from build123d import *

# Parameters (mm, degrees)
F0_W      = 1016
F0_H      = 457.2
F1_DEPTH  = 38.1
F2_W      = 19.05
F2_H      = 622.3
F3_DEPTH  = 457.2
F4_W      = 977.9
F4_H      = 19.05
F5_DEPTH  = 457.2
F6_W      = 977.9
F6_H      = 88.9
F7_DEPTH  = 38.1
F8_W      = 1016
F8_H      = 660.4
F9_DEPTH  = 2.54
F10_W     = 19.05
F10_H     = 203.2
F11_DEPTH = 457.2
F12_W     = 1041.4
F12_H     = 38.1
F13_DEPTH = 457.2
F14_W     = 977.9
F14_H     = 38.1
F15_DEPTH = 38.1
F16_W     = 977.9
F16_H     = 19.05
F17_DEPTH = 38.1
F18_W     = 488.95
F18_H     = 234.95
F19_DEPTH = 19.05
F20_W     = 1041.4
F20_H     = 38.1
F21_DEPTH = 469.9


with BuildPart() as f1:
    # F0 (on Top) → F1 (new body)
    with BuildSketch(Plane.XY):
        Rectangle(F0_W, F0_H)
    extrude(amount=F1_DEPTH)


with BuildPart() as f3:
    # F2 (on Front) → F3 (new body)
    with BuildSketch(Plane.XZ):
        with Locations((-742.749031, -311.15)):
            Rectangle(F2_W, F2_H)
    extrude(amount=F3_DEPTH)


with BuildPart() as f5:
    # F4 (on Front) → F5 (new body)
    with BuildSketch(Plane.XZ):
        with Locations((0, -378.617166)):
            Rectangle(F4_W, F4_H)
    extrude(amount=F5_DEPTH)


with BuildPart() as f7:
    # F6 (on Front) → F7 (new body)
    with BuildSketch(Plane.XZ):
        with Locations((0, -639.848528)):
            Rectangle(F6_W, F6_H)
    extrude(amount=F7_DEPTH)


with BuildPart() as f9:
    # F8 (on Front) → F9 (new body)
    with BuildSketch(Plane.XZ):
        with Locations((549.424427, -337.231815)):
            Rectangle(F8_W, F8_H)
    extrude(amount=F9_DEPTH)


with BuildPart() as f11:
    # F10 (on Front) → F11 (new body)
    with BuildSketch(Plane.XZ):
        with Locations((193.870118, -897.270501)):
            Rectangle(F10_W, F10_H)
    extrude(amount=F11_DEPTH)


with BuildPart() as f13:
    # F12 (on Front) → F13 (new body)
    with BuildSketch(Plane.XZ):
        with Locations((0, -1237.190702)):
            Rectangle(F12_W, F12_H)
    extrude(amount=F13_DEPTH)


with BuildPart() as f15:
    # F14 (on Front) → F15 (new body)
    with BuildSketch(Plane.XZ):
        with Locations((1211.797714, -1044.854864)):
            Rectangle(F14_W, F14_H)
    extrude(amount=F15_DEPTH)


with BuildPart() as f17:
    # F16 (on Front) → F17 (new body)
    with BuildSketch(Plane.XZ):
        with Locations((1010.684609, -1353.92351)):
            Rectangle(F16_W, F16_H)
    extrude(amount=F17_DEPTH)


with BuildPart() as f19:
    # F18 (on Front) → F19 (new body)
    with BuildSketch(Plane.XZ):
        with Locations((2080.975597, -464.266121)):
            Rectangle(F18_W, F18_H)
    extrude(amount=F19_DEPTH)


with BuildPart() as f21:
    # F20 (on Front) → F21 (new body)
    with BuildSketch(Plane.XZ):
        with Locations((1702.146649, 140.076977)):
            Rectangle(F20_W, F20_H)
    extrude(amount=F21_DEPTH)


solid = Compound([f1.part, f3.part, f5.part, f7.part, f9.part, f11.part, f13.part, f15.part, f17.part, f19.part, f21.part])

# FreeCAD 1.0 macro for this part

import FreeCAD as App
import Part
import Sketcher
from FreeCAD import Vector
Q = App.Units.Quantity

doc = App.newDocument("Part")
body = doc.addObject("PartDesign::Body", "Body")

sketch1 = body.newObject("Sketcher::SketchObject", "Sketch")
sketch1.AttachmentSupport = (doc.getObject("XY_Plane"), [""])
sketch1.MapMode = "FlatFace"
sketch1.addGeometry([
    Part.LineSegment(Vector(-508, 228.6, 0), Vector(-508, -228.6, 0)),
    Part.LineSegment(Vector(-508, -228.6, 0), Vector(508, -228.6, 0)),
    Part.LineSegment(Vector(508, -228.6, 0), Vector(508, 228.6, 0)),
    Part.LineSegment(Vector(508, 228.6, 0), Vector(-508, 228.6, 0)),
], False)
sketch1.addConstraint([
    Sketcher.Constraint("Coincident", 0, 2, 1, 1),
    Sketcher.Constraint("Coincident", 1, 2, 2, 1),
    Sketcher.Constraint("Coincident", 2, 2, 3, 1),
    Sketcher.Constraint("Coincident", 3, 2, 0, 1),
    Sketcher.Constraint("Vertical", 0),
    Sketcher.Constraint("Horizontal", 1),
    Sketcher.Constraint("Vertical", 2),
    Sketcher.Constraint("Horizontal", 3),
    Sketcher.Constraint("Symmetric", 0, 2, 2, 2, -1, 1),
    Sketcher.Constraint("DistanceX", 1, 1, 1, 2, Q("40 in")),
    Sketcher.Constraint("DistanceY", 0, 2, 0, 1, Q("18 in")),
])
pad1 = body.newObject("PartDesign::Pad", "Pad")
pad1.Profile = sketch1
pad1.Length = Q("1.5 in")
body2 = doc.addObject("PartDesign::Body", "Body001")

sketch2 = body2.newObject("Sketcher::SketchObject", "Sketch001")
sketch2.AttachmentSupport = (doc.getObject("XZ_Plane001"), [""])
sketch2.MapMode = "FlatFace"
sketch2.addGeometry([
    Part.LineSegment(Vector(-752.274031, 0, 0), Vector(-752.274031, -622.3, 0)),
    Part.LineSegment(Vector(-752.274031, -622.3, 0), Vector(-733.224031, -622.3, 0)),
    Part.LineSegment(Vector(-733.224031, -622.3, 0), Vector(-733.224031, 0, 0)),
    Part.LineSegment(Vector(-733.224031, 0, 0), Vector(-752.274031, 0, 0)),
], False)
sketch2.addConstraint([
    Sketcher.Constraint("Coincident", 0, 2, 1, 1),
    Sketcher.Constraint("Coincident", 1, 2, 2, 1),
    Sketcher.Constraint("Coincident", 2, 2, 3, 1),
    Sketcher.Constraint("Coincident", 3, 2, 0, 1),
    Sketcher.Constraint("Vertical", 0),
    Sketcher.Constraint("Horizontal", 1),
    Sketcher.Constraint("Vertical", 2),
    Sketcher.Constraint("Horizontal", 3),
    Sketcher.Constraint("PointOnObject", 2, 2, -1),
    Sketcher.Constraint("DistanceY", 0, 2, 0, 1, Q("24.5 in")),
    Sketcher.Constraint("DistanceX", 1, 1, 1, 2, Q("0.75 in")),
    Sketcher.Constraint("DistanceX", 0, 2, -1, 1, Q("752.274031 mm")),
])
pad2 = body2.newObject("PartDesign::Pad", "Pad001")
pad2.Profile = sketch2
pad2.Length = Q("18 in")
body3 = doc.addObject("PartDesign::Body", "Body002")

sketch3 = body3.newObject("Sketcher::SketchObject", "Sketch002")
sketch3.AttachmentSupport = (doc.getObject("XZ_Plane002"), [""])
sketch3.MapMode = "FlatFace"
sketch3.addGeometry([
    Part.LineSegment(Vector(-488.95, -369.092166, 0), Vector(-488.95, -388.142166, 0)),
    Part.LineSegment(Vector(-488.95, -388.142166, 0), Vector(488.95, -388.142166, 0)),
    Part.LineSegment(Vector(488.95, -388.142166, 0), Vector(488.95, -369.092166, 0)),
    Part.LineSegment(Vector(488.95, -369.092166, 0), Vector(-488.95, -369.092166, 0)),
], False)
sketch3.addConstraint([
    Sketcher.Constraint("Coincident", 0, 2, 1, 1),
    Sketcher.Constraint("Coincident", 1, 2, 2, 1),
    Sketcher.Constraint("Coincident", 2, 2, 3, 1),
    Sketcher.Constraint("Coincident", 3, 2, 0, 1),
    Sketcher.Constraint("Vertical", 0),
    Sketcher.Constraint("Horizontal", 1),
    Sketcher.Constraint("Vertical", 2),
    Sketcher.Constraint("Horizontal", 3),
    Sketcher.Constraint("DistanceX", 1, 1, 1, 2, Q("38.5 in")),
    Sketcher.Constraint("DistanceY", 0, 2, 0, 1, Q("0.75 in")),
    Sketcher.Constraint("DistanceX", 0, 2, -1, 1, Q("19.25 in")),
    Sketcher.Constraint("DistanceY", 0, 2, -1, 1, Q("388.142166 mm")),
])
pad3 = body3.newObject("PartDesign::Pad", "Pad002")
pad3.Profile = sketch3
pad3.Length = Q("18 in")
body4 = doc.addObject("PartDesign::Body", "Body003")

sketch4 = body4.newObject("Sketcher::SketchObject", "Sketch003")
sketch4.AttachmentSupport = (doc.getObject("XZ_Plane003"), [""])
sketch4.MapMode = "FlatFace"
sketch4.addGeometry([
    Part.LineSegment(Vector(-488.95, -595.398528, 0), Vector(-488.95, -684.298528, 0)),
    Part.LineSegment(Vector(-488.95, -684.298528, 0), Vector(488.95, -684.298528, 0)),
    Part.LineSegment(Vector(488.95, -684.298528, 0), Vector(488.95, -595.398528, 0)),
    Part.LineSegment(Vector(488.95, -595.398528, 0), Vector(-488.95, -595.398528, 0)),
], False)
sketch4.addConstraint([
    Sketcher.Constraint("Coincident", 0, 2, 1, 1),
    Sketcher.Constraint("Coincident", 1, 2, 2, 1),
    Sketcher.Constraint("Coincident", 2, 2, 3, 1),
    Sketcher.Constraint("Coincident", 3, 2, 0, 1),
    Sketcher.Constraint("Vertical", 0),
    Sketcher.Constraint("Horizontal", 1),
    Sketcher.Constraint("Vertical", 2),
    Sketcher.Constraint("Horizontal", 3),
    Sketcher.Constraint("DistanceX", 1, 1, 1, 2, Q("38.5 in")),
    Sketcher.Constraint("DistanceY", 0, 2, 0, 1, Q("3.5 in")),
    Sketcher.Constraint("DistanceX", 0, 2, -1, 1, Q("19.25 in")),
    Sketcher.Constraint("DistanceY", 0, 2, -1, 1, Q("684.298528 mm")),
])
pad4 = body4.newObject("PartDesign::Pad", "Pad003")
pad4.Profile = sketch4
pad4.Length = Q("1.5 in")
body5 = doc.addObject("PartDesign::Body", "Body004")

sketch5 = body5.newObject("Sketcher::SketchObject", "Sketch004")
sketch5.AttachmentSupport = (doc.getObject("XZ_Plane004"), [""])
sketch5.MapMode = "FlatFace"
sketch5.addGeometry([
    Part.LineSegment(Vector(41.424427, -7.031815, 0), Vector(41.424427, -667.431815, 0)),
    Part.LineSegment(Vector(41.424427, -667.431815, 0), Vector(1057.424427, -667.431815, 0)),
    Part.LineSegment(Vector(1057.424427, -667.431815, 0), Vector(1057.424427, -7.031815, 0)),
    Part.LineSegment(Vector(1057.424427, -7.031815, 0), Vector(41.424427, -7.031815, 0)),
], False)
sketch5.addConstraint([
    Sketcher.Constraint("Coincident", 0, 2, 1, 1),
    Sketcher.Constraint("Coincident", 1, 2, 2, 1),
    Sketcher.Constraint("Coincident", 2, 2, 3, 1),
    Sketcher.Constraint("Coincident", 3, 2, 0, 1),
    Sketcher.Constraint("Vertical", 0),
    Sketcher.Constraint("Horizontal", 1),
    Sketcher.Constraint("Vertical", 2),
    Sketcher.Constraint("Horizontal", 3),
    Sketcher.Constraint("DistanceX", 1, 1, 1, 2, Q("40 in")),
    Sketcher.Constraint("DistanceY", 0, 2, 0, 1, Q("26 in")),
    Sketcher.Constraint("DistanceX", -1, 1, 0, 2, Q("41.424427 mm")),
    Sketcher.Constraint("DistanceY", 0, 2, -1, 1, Q("667.431815 mm")),
])
pad5 = body5.newObject("PartDesign::Pad", "Pad004")
pad5.Profile = sketch5
pad5.Length = Q("0.1 in")
body6 = doc.addObject("PartDesign::Body", "Body005")

sketch6 = body6.newObject("Sketcher::SketchObject", "Sketch005")
sketch6.AttachmentSupport = (doc.getObject("XZ_Plane005"), [""])
sketch6.MapMode = "FlatFace"
sketch6.addGeometry([
    Part.LineSegment(Vector(184.345118, -795.670501, 0), Vector(184.345118, -998.870501, 0)),
    Part.LineSegment(Vector(184.345118, -998.870501, 0), Vector(203.395118, -998.870501, 0)),
    Part.LineSegment(Vector(203.395118, -998.870501, 0), Vector(203.395118, -795.670501, 0)),
    Part.LineSegment(Vector(203.395118, -795.670501, 0), Vector(184.345118, -795.670501, 0)),
], False)
sketch6.addConstraint([
    Sketcher.Constraint("Coincident", 0, 2, 1, 1),
    Sketcher.Constraint("Coincident", 1, 2, 2, 1),
    Sketcher.Constraint("Coincident", 2, 2, 3, 1),
    Sketcher.Constraint("Coincident", 3, 2, 0, 1),
    Sketcher.Constraint("Vertical", 0),
    Sketcher.Constraint("Horizontal", 1),
    Sketcher.Constraint("Vertical", 2),
    Sketcher.Constraint("Horizontal", 3),
    Sketcher.Constraint("DistanceY", 0, 2, 0, 1, Q("8 in")),
    Sketcher.Constraint("DistanceX", 1, 1, 1, 2, Q("0.75 in")),
    Sketcher.Constraint("DistanceY", 0, 2, -1, 1, Q("998.870501 mm")),
    Sketcher.Constraint("DistanceX", -1, 1, 0, 2, Q("184.345118 mm")),
])
pad6 = body6.newObject("PartDesign::Pad", "Pad005")
pad6.Profile = sketch6
pad6.Length = Q("18 in")
body7 = doc.addObject("PartDesign::Body", "Body006")

sketch7 = body7.newObject("Sketcher::SketchObject", "Sketch006")
sketch7.AttachmentSupport = (doc.getObject("XZ_Plane006"), [""])
sketch7.MapMode = "FlatFace"
sketch7.addGeometry([
    Part.LineSegment(Vector(-520.7, -1218.140702, 0), Vector(-520.7, -1256.240702, 0)),
    Part.LineSegment(Vector(-520.7, -1256.240702, 0), Vector(520.7, -1256.240702, 0)),
    Part.LineSegment(Vector(520.7, -1256.240702, 0), Vector(520.7, -1218.140702, 0)),
    Part.LineSegment(Vector(520.7, -1218.140702, 0), Vector(-520.7, -1218.140702, 0)),
], False)
sketch7.addConstraint([
    Sketcher.Constraint("Coincident", 0, 2, 1, 1),
    Sketcher.Constraint("Coincident", 1, 2, 2, 1),
    Sketcher.Constraint("Coincident", 2, 2, 3, 1),
    Sketcher.Constraint("Coincident", 3, 2, 0, 1),
    Sketcher.Constraint("Vertical", 0),
    Sketcher.Constraint("Horizontal", 1),
    Sketcher.Constraint("Vertical", 2),
    Sketcher.Constraint("Horizontal", 3),
    Sketcher.Constraint("DistanceX", 1, 1, 1, 2, Q("41 in")),
    Sketcher.Constraint("DistanceY", 0, 2, 0, 1, Q("1.5 in")),
    Sketcher.Constraint("DistanceX", 0, 2, -1, 1, Q("20.5 in")),
    Sketcher.Constraint("DistanceY", 0, 2, -1, 1, Q("1256.240702 mm")),
])
pad7 = body7.newObject("PartDesign::Pad", "Pad006")
pad7.Profile = sketch7
pad7.Length = Q("18 in")
body8 = doc.addObject("PartDesign::Body", "Body007")

sketch8 = body8.newObject("Sketcher::SketchObject", "Sketch007")
sketch8.AttachmentSupport = (doc.getObject("XZ_Plane007"), [""])
sketch8.MapMode = "FlatFace"
sketch8.addGeometry([
    Part.LineSegment(Vector(722.847714, -1025.804864, 0), Vector(722.847714, -1063.904864, 0)),
    Part.LineSegment(Vector(722.847714, -1063.904864, 0), Vector(1700.747714, -1063.904864, 0)),
    Part.LineSegment(Vector(1700.747714, -1063.904864, 0), Vector(1700.747714, -1025.804864, 0)),
    Part.LineSegment(Vector(1700.747714, -1025.804864, 0), Vector(722.847714, -1025.804864, 0)),
], False)
sketch8.addConstraint([
    Sketcher.Constraint("Coincident", 0, 2, 1, 1),
    Sketcher.Constraint("Coincident", 1, 2, 2, 1),
    Sketcher.Constraint("Coincident", 2, 2, 3, 1),
    Sketcher.Constraint("Coincident", 3, 2, 0, 1),
    Sketcher.Constraint("Vertical", 0),
    Sketcher.Constraint("Horizontal", 1),
    Sketcher.Constraint("Vertical", 2),
    Sketcher.Constraint("Horizontal", 3),
    Sketcher.Constraint("DistanceX", 1, 1, 1, 2, Q("38.5 in")),
    Sketcher.Constraint("DistanceY", 0, 2, 0, 1, Q("1.5 in")),
    Sketcher.Constraint("DistanceX", -1, 1, 0, 2, Q("722.847714 mm")),
    Sketcher.Constraint("DistanceY", 0, 2, -1, 1, Q("1063.904864 mm")),
])
pad8 = body8.newObject("PartDesign::Pad", "Pad007")
pad8.Profile = sketch8
pad8.Length = Q("1.5 in")
body9 = doc.addObject("PartDesign::Body", "Body008")

sketch9 = body9.newObject("Sketcher::SketchObject", "Sketch008")
sketch9.AttachmentSupport = (doc.getObject("XZ_Plane008"), [""])
sketch9.MapMode = "FlatFace"
sketch9.addGeometry([
    Part.LineSegment(Vector(521.734609, -1344.39851, 0), Vector(521.734609, -1363.44851, 0)),
    Part.LineSegment(Vector(521.734609, -1363.44851, 0), Vector(1499.634609, -1363.44851, 0)),
    Part.LineSegment(Vector(1499.634609, -1363.44851, 0), Vector(1499.634609, -1344.39851, 0)),
    Part.LineSegment(Vector(1499.634609, -1344.39851, 0), Vector(521.734609, -1344.39851, 0)),
], False)
sketch9.addConstraint([
    Sketcher.Constraint("Coincident", 0, 2, 1, 1),
    Sketcher.Constraint("Coincident", 1, 2, 2, 1),
    Sketcher.Constraint("Coincident", 2, 2, 3, 1),
    Sketcher.Constraint("Coincident", 3, 2, 0, 1),
    Sketcher.Constraint("Vertical", 0),
    Sketcher.Constraint("Horizontal", 1),
    Sketcher.Constraint("Vertical", 2),
    Sketcher.Constraint("Horizontal", 3),
    Sketcher.Constraint("DistanceX", 1, 1, 1, 2, Q("38.5 in")),
    Sketcher.Constraint("DistanceY", 0, 2, 0, 1, Q("0.75 in")),
    Sketcher.Constraint("DistanceX", -1, 1, 0, 2, Q("521.734609 mm")),
    Sketcher.Constraint("DistanceY", 0, 2, -1, 1, Q("1363.44851 mm")),
])
pad9 = body9.newObject("PartDesign::Pad", "Pad008")
pad9.Profile = sketch9
pad9.Length = Q("1.5 in")
body10 = doc.addObject("PartDesign::Body", "Body009")

sketch10 = body10.newObject("Sketcher::SketchObject", "Sketch009")
sketch10.AttachmentSupport = (doc.getObject("XZ_Plane009"), [""])
sketch10.MapMode = "FlatFace"
sketch10.addGeometry([
    Part.LineSegment(Vector(1836.500597, -346.791121, 0), Vector(1836.500597, -581.741121, 0)),
    Part.LineSegment(Vector(1836.500597, -581.741121, 0), Vector(2325.450597, -581.741121, 0)),
    Part.LineSegment(Vector(2325.450597, -581.741121, 0), Vector(2325.450597, -346.791121, 0)),
    Part.LineSegment(Vector(2325.450597, -346.791121, 0), Vector(1836.500597, -346.791121, 0)),
], False)
sketch10.addConstraint([
    Sketcher.Constraint("Coincident", 0, 2, 1, 1),
    Sketcher.Constraint("Coincident", 1, 2, 2, 1),
    Sketcher.Constraint("Coincident", 2, 2, 3, 1),
    Sketcher.Constraint("Coincident", 3, 2, 0, 1),
    Sketcher.Constraint("Vertical", 0),
    Sketcher.Constraint("Horizontal", 1),
    Sketcher.Constraint("Vertical", 2),
    Sketcher.Constraint("Horizontal", 3),
    Sketcher.Constraint("DistanceX", 1, 1, 1, 2, Q("19.25 in")),
    Sketcher.Constraint("DistanceY", 0, 2, 0, 1, Q("9.25 in")),
    Sketcher.Constraint("DistanceY", 0, 2, -1, 1, Q("581.741121 mm")),
    Sketcher.Constraint("DistanceX", -1, 1, 0, 2, Q("1836.500597 mm")),
])
pad10 = body10.newObject("PartDesign::Pad", "Pad009")
pad10.Profile = sketch10
pad10.Length = Q("0.75 in")
body11 = doc.addObject("PartDesign::Body", "Body010")

sketch11 = body11.newObject("Sketcher::SketchObject", "Sketch010")
sketch11.AttachmentSupport = (doc.getObject("XZ_Plane010"), [""])
sketch11.MapMode = "FlatFace"
sketch11.addGeometry([
    Part.LineSegment(Vector(1181.446649, 159.126977, 0), Vector(1181.446649, 121.026977, 0)),
    Part.LineSegment(Vector(1181.446649, 121.026977, 0), Vector(2222.846649, 121.026977, 0)),
    Part.LineSegment(Vector(2222.846649, 121.026977, 0), Vector(2222.846649, 159.126977, 0)),
    Part.LineSegment(Vector(2222.846649, 159.126977, 0), Vector(1181.446649, 159.126977, 0)),
], False)
sketch11.addConstraint([
    Sketcher.Constraint("Coincident", 0, 2, 1, 1),
    Sketcher.Constraint("Coincident", 1, 2, 2, 1),
    Sketcher.Constraint("Coincident", 2, 2, 3, 1),
    Sketcher.Constraint("Coincident", 3, 2, 0, 1),
    Sketcher.Constraint("Vertical", 0),
    Sketcher.Constraint("Horizontal", 1),
    Sketcher.Constraint("Vertical", 2),
    Sketcher.Constraint("Horizontal", 3),
    Sketcher.Constraint("DistanceX", 1, 1, 1, 2, Q("41 in")),
    Sketcher.Constraint("DistanceY", 0, 2, 0, 1, Q("1.5 in")),
    Sketcher.Constraint("DistanceX", -1, 1, 0, 2, Q("1181.446649 mm")),
    Sketcher.Constraint("DistanceY", -1, 1, 0, 2, Q("121.026977 mm")),
])
pad11 = body11.newObject("PartDesign::Pad", "Pad010")
pad11.Profile = sketch11
pad11.Length = Q("18.5 in")

doc.recompute()
